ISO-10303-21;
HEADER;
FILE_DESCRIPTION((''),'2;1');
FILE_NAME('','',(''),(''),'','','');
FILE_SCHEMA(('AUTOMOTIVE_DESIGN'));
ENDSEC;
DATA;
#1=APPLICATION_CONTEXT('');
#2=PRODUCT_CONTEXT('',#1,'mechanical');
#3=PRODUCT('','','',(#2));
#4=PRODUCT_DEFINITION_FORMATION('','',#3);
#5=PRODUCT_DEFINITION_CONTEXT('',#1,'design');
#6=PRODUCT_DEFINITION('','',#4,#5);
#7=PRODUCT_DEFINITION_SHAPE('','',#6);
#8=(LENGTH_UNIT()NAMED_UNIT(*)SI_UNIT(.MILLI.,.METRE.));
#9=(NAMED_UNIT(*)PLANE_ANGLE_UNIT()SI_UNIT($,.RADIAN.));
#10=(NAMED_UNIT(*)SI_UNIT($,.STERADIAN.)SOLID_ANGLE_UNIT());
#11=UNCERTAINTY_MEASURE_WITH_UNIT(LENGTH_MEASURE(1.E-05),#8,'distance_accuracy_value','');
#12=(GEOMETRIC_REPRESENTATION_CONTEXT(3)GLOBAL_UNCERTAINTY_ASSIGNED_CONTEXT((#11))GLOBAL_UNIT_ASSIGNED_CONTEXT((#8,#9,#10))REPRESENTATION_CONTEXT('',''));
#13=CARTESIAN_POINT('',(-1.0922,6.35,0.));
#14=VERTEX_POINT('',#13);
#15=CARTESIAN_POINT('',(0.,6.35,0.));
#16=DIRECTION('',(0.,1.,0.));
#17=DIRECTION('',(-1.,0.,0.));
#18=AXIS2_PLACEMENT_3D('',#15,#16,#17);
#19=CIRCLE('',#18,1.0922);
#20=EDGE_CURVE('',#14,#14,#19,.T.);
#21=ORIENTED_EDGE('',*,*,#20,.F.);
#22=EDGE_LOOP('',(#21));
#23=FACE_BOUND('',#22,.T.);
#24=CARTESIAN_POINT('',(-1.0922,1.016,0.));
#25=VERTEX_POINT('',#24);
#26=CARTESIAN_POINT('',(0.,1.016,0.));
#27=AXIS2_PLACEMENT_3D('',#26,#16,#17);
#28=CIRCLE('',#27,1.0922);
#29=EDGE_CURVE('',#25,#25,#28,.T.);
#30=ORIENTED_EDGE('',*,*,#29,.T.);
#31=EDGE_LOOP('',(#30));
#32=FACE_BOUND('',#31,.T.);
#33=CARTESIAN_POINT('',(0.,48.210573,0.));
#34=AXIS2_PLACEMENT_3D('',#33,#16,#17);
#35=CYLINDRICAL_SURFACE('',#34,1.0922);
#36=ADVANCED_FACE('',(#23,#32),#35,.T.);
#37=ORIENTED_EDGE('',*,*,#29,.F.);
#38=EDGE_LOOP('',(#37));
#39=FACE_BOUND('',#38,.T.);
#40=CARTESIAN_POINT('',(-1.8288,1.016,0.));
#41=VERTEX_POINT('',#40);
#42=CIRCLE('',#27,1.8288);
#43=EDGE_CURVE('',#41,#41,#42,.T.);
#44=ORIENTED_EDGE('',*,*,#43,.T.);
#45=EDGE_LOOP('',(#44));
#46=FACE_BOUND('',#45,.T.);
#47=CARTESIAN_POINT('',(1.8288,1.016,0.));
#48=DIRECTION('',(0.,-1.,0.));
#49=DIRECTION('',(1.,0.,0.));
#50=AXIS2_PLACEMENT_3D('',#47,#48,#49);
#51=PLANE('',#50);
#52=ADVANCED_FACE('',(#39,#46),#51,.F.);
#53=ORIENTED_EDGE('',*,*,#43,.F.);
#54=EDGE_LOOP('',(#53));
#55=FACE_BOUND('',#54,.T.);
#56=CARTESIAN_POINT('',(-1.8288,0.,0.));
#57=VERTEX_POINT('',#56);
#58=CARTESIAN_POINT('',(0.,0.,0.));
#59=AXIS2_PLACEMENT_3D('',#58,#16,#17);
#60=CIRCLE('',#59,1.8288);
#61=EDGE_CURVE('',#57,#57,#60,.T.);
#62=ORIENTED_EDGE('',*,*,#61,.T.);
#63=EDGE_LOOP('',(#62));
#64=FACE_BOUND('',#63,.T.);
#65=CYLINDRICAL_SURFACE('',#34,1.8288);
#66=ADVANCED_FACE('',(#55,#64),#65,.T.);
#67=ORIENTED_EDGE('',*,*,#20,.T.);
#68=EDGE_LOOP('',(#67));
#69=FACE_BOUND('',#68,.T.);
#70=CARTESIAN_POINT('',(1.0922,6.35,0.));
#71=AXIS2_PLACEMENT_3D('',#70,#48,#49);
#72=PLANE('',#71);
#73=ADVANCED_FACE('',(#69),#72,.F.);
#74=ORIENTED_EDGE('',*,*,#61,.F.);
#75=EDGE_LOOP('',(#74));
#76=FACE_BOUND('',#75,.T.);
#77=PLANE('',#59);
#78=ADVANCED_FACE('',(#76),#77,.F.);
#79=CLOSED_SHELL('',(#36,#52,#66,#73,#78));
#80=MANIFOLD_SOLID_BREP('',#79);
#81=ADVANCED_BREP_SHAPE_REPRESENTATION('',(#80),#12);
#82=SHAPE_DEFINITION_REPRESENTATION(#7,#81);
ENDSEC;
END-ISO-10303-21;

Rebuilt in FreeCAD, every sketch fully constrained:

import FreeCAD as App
import Part
import Sketcher
Q = App.Units.Quantity


def add_polygon(sketch, points):
    """Adds a closed chain of lines whose ends are joined by coincident constraints."""
    first, n = sketch.GeometryCount, len(points)
    for a, b in zip(points, points[1:] + points[:1]):
        sketch.addGeometry(Part.LineSegment(App.Vector(*a, 0), App.Vector(*b, 0)), False)
    for i in range(n):
        sketch.addConstraint(Sketcher.Constraint("Coincident", first + i, 2, first + (i + 1) % n, 1))

doc = App.newDocument("Part")
body = doc.addObject("PartDesign::Body", "Body")

# Sketch on XY plane
sketch1 = body.newObject("Sketcher::SketchObject", "Sketch")
sketch1.AttachmentSupport = (doc.getObject("XY_Plane"), [""])
sketch1.MapMode = "FlatFace"
add_polygon(sketch1, [(0, 0), (1.8, 0), (1.8, 1), (1.1, 1), (1.1, 6.3), (0, 6.3)])  # lines 0-5
sketch1.addConstraint(Sketcher.Constraint("Horizontal", 0))
sketch1.addConstraint(Sketcher.Constraint("Vertical", 1))
sketch1.addConstraint(Sketcher.Constraint("Horizontal", 2))
sketch1.addConstraint(Sketcher.Constraint("Vertical", 3))
sketch1.addConstraint(Sketcher.Constraint("Horizontal", 4))
sketch1.addConstraint(Sketcher.Constraint("Vertical", 5))
sketch1.addConstraint(Sketcher.Constraint("Coincident", 5, 2, -1, 1))
sketch1.addConstraint(Sketcher.Constraint("DistanceY", 1, 1, 1, 2, Q("0.04 in")))
sketch1.addConstraint(Sketcher.Constraint("DistanceY", 3, 1, 3, 2, Q("0.21 in")))
sketch1.addConstraint(Sketcher.Constraint("DistanceX", 0, 1, 0, 2, Q("0.072 in")))
sketch1.addConstraint(Sketcher.Constraint("DistanceX", 2, 2, 2, 1, Q("0.029 in")))
revolution = body.newObject("PartDesign::Revolution", "Revolution")
revolution.Profile = sketch1
revolution.ReferenceAxis = (sketch1, ["V_Axis"])
revolution.Angle = 360

doc.recompute()
